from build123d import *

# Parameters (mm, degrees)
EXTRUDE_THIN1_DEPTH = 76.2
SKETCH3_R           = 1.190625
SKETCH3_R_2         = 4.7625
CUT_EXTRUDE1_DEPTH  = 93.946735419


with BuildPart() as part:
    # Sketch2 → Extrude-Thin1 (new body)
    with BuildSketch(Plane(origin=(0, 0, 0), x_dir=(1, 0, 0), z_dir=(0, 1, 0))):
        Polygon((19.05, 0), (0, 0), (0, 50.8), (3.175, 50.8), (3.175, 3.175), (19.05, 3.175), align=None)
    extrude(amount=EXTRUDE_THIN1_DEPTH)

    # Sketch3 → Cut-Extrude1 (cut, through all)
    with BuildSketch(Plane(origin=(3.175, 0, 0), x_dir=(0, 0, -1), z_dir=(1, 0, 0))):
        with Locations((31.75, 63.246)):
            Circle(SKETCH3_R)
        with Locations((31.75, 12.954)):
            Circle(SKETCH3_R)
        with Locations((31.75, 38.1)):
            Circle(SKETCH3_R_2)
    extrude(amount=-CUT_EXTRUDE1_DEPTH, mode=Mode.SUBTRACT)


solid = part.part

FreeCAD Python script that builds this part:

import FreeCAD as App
import Part
import Sketcher
from FreeCAD import Vector
Q = App.Units.Quantity

doc = App.newDocument("Part")
body = doc.addObject("PartDesign::Body", "Body")

# Sketch on XZ plane
sketch1 = doc.addObject("Sketcher::SketchObject", "Sketch")
body.addObject(sketch1)
sketch1.AttachmentSupport = (doc.XZ_Plane, [""])
sketch1.MapMode = "FlatFace"
sketch1.addGeometry([
    Part.LineSegment(Vector(0, 0, 0), Vector(19.05, 0, 0)),  # 0
    Part.LineSegment(Vector(19.05, 0, 0), Vector(19.05, -3.175, 0)),  # 1
    Part.LineSegment(Vector(19.05, -3.175, 0), Vector(3.175, -3.175, 0)),  # 2
    Part.LineSegment(Vector(3.175, -3.175, 0), Vector(3.175, -50.8, 0)),  # 3
    Part.LineSegment(Vector(3.175, -50.8, 0), Vector(0, -50.8, 0)),  # 4
    Part.LineSegment(Vector(0, -50.8, 0), Vector(0, 0, 0)),  # 5
], False)
sketch1.addConstraint([
    Sketcher.Constraint("Coincident", 0, 2, 1, 1),
    Sketcher.Constraint("Coincident", 1, 2, 2, 1),
    Sketcher.Constraint("Coincident", 2, 2, 3, 1),
    Sketcher.Constraint("Coincident", 3, 2, 4, 1),
    Sketcher.Constraint("Coincident", 4, 2, 5, 1),
    Sketcher.Constraint("Coincident", 5, 2, 0, 1),
    Sketcher.Constraint("Horizontal", 0),
    Sketcher.Constraint("Vertical", 1),
    Sketcher.Constraint("Horizontal", 2),
    Sketcher.Constraint("Vertical", 3),
    Sketcher.Constraint("Horizontal", 4),
    Sketcher.Constraint("Vertical", 5),
    Sketcher.Constraint("Coincident", 5, 2, -1, 1),
    Sketcher.Constraint("Equal", 4, 1),
    Sketcher.Constraint("DistanceY", 5, 1, 5, 2, Q("2 in")),
    Sketcher.Constraint("DistanceX", 0, 1, 0, 2, Q("0.75 in")),
    Sketcher.Constraint("DistanceX", 2, 2, 2, 1, Q("0.625 in")),
])
pad1 = doc.addObject("PartDesign::Pad", "Pad")
body.addObject(pad1)
pad1.Profile = sketch1
pad1.Length = Q("3 in")
pad1.Reversed = True

# Sketch on YZ plane
sketch2 = doc.addObject("Sketcher::SketchObject", "Sketch001")
body.addObject(sketch2)
sketch2.AttachmentSupport = (doc.YZ_Plane, [""])
sketch2.MapMode = "FlatFace"
sketch2.AttachmentOffset = App.Placement(Vector(0, 0, 0.125 * 25.4), App.Rotation())
sketch2.addGeometry([
    Part.Circle(Vector(63.246, -31.75, 0), Vector(0, 0, 1), 1.190625),
    Part.Circle(Vector(12.954, -31.75, 0), Vector(0, 0, 1), 1.190625),
    Part.Circle(Vector(38.1, -31.75, 0), Vector(0, 0, 1), 4.7625),
], False)
sketch2.addConstraint([
    Sketcher.Constraint("Equal", 0, 1),
    Sketcher.Constraint("Horizontal", 0, 3, 1, 3),
    Sketcher.Constraint("Horizontal", 1, 3, 2, 3),
    Sketcher.Constraint("Diameter", 0, Q("0.09375 in")),
    Sketcher.Constraint("Diameter", 2, Q("0.375 in")),
    Sketcher.Constraint("DistanceX", -1, 1, 2, 3, Q("1.5 in")),
    Sketcher.Constraint("DistanceX", -1, 1, 0, 3, Q("2.49 in")),
    Sketcher.Constraint("DistanceY", 0, 3, -1, 1, Q("1.25 in")),
    Sketcher.Constraint("DistanceX", -1, 1, 1, 3, Q("0.51 in")),
])
pocket1 = doc.addObject("PartDesign::Pocket", "Pocket")
body.addObject(pocket1)
pocket1.Profile = sketch2
pocket1.Type = "ThroughAll"

doc.recompute()
